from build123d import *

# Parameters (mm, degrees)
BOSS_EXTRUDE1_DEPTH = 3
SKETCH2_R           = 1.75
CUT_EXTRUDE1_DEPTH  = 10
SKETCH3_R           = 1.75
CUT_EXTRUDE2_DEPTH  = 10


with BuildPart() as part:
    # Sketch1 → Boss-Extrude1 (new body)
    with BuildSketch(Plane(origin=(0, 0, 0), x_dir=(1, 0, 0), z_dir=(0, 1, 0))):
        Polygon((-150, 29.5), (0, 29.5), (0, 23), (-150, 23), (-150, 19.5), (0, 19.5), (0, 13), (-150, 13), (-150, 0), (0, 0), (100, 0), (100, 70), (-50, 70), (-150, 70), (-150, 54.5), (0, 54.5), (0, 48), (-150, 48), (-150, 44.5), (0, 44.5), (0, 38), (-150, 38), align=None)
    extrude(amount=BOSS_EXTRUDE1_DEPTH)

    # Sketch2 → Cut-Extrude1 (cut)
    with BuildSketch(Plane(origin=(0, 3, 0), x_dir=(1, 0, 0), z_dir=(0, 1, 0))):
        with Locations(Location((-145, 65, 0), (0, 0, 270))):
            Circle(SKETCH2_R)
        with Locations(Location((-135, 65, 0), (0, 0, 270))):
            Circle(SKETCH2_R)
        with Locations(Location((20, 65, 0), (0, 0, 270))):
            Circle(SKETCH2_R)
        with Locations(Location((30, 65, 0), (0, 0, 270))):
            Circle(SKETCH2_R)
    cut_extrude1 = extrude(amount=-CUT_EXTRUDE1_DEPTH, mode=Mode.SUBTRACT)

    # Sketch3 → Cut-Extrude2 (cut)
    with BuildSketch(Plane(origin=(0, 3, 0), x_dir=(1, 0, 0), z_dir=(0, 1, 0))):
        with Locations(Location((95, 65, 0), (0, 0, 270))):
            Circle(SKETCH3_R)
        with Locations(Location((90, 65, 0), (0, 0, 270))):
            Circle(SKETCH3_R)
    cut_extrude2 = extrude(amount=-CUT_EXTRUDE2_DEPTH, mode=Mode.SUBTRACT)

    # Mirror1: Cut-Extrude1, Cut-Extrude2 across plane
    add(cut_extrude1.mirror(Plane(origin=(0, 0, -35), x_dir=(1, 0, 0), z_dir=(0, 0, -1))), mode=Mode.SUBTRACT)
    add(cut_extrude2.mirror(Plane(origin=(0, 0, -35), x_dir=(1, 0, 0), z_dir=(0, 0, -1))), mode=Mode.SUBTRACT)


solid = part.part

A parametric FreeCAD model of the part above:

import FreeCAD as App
import Part
import Sketcher
from FreeCAD import Vector

doc = App.newDocument("Part")
body = doc.addObject("PartDesign::Body", "Body")

# Sketch on XZ plane
sketch1 = body.newObject("Sketcher::SketchObject", "Sketch")
sketch1.AttachmentSupport = (doc.getObject("XZ_Plane"), [""])
sketch1.MapMode = "FlatFace"
sketch1.addGeometry(Part.LineSegment(Vector(-150, -29.5, 0), Vector(0, -29.5, 0)), False)
sketch1.addGeometry(Part.LineSegment(Vector(0, -29.5, 0), Vector(0, -23, 0)), False)
sketch1.addGeometry(Part.LineSegment(Vector(0, -23, 0), Vector(-150, -23, 0)), False)
sketch1.addGeometry(Part.LineSegment(Vector(-150, -23, 0), Vector(-150, -19.5, 0)), False)
sketch1.addGeometry(Part.LineSegment(Vector(-150, -19.5, 0), Vector(0, -19.5, 0)), False)
sketch1.addGeometry(Part.LineSegment(Vector(0, -19.5, 0), Vector(0, -13, 0)), False)
sketch1.addGeometry(Part.LineSegment(Vector(0, -13, 0), Vector(-150, -13, 0)), False)
sketch1.addGeometry(Part.LineSegment(Vector(-150, -13, 0), Vector(-150, 0, 0)), False)
sketch1.addGeometry(Part.LineSegment(Vector(-150, 0, 0), Vector(100, 0, 0)), False)
sketch1.addGeometry(Part.LineSegment(Vector(100, 0, 0), Vector(100, -70, 0)), False)
sketch1.addGeometry(Part.LineSegment(Vector(100, -70, 0), Vector(-150, -70, 0)), False)
sketch1.addGeometry(Part.LineSegment(Vector(-150, -70, 0), Vector(-150, -54.5, 0)), False)
sketch1.addGeometry(Part.LineSegment(Vector(-150, -54.5, 0), Vector(0, -54.5, 0)), False)
sketch1.addGeometry(Part.LineSegment(Vector(0, -54.5, 0), Vector(0, -48, 0)), False)
sketch1.addGeometry(Part.LineSegment(Vector(0, -48, 0), Vector(-150, -48, 0)), False)
sketch1.addGeometry(Part.LineSegment(Vector(-150, -48, 0), Vector(-150, -44.5, 0)), False)
sketch1.addGeometry(Part.LineSegment(Vector(-150, -44.5, 0), Vector(0, -44.5, 0)), False)
sketch1.addGeometry(Part.LineSegment(Vector(0, -44.5, 0), Vector(0, -38, 0)), False)
sketch1.addGeometry(Part.LineSegment(Vector(0, -38, 0), Vector(-150, -38, 0)), False)
sketch1.addGeometry(Part.LineSegment(Vector(-150, -38, 0), Vector(-150, -29.5, 0)), False)
sketch1.addConstraint(Sketcher.Constraint("Coincident", 0, 2, 1, 1))
sketch1.addConstraint(Sketcher.Constraint("Coincident", 1, 2, 2, 1))
sketch1.addConstraint(Sketcher.Constraint("Coincident", 2, 2, 3, 1))
sketch1.addConstraint(Sketcher.Constraint("Coincident", 3, 2, 4, 1))
sketch1.addConstraint(Sketcher.Constraint("Coincident", 4, 2, 5, 1))
sketch1.addConstraint(Sketcher.Constraint("Coincident", 5, 2, 6, 1))
sketch1.addConstraint(Sketcher.Constraint("Coincident", 6, 2, 7, 1))
sketch1.addConstraint(Sketcher.Constraint("Coincident", 7, 2, 8, 1))
sketch1.addConstraint(Sketcher.Constraint("Coincident", 8, 2, 9, 1))
sketch1.addConstraint(Sketcher.Constraint("Coincident", 9, 2, 10, 1))
sketch1.addConstraint(Sketcher.Constraint("Coincident", 10, 2, 11, 1))
sketch1.addConstraint(Sketcher.Constraint("Coincident", 11, 2, 12, 1))
sketch1.addConstraint(Sketcher.Constraint("Coincident", 12, 2, 13, 1))
sketch1.addConstraint(Sketcher.Constraint("Coincident", 13, 2, 14, 1))
sketch1.addConstraint(Sketcher.Constraint("Coincident", 14, 2, 15, 1))
sketch1.addConstraint(Sketcher.Constraint("Coincident", 15, 2, 16, 1))
sketch1.addConstraint(Sketcher.Constraint("Coincident", 16, 2, 17, 1))
sketch1.addConstraint(Sketcher.Constraint("Coincident", 17, 2, 18, 1))
sketch1.addConstraint(Sketcher.Constraint("Coincident", 18, 2, 19, 1))
sketch1.addConstraint(Sketcher.Constraint("Coincident", 19, 2, 0, 1))
sketch1.addConstraint(Sketcher.Constraint("Horizontal", 0))
sketch1.addConstraint(Sketcher.Constraint("Vertical", 1))
sketch1.addConstraint(Sketcher.Constraint("Horizontal", 2))
sketch1.addConstraint(Sketcher.Constraint("Vertical", 3))
sketch1.addConstraint(Sketcher.Constraint("Horizontal", 4))
sketch1.addConstraint(Sketcher.Constraint("Vertical", 5))
sketch1.addConstraint(Sketcher.Constraint("Horizontal", 6))
sketch1.addConstraint(Sketcher.Constraint("Vertical", 7))
sketch1.addConstraint(Sketcher.Constraint("Horizontal", 8))
sketch1.addConstraint(Sketcher.Constraint("Vertical", 9))
sketch1.addConstraint(Sketcher.Constraint("Horizontal", 10))
sketch1.addConstraint(Sketcher.Constraint("Vertical", 11))
sketch1.addConstraint(Sketcher.Constraint("Horizontal", 12))
sketch1.addConstraint(Sketcher.Constraint("Vertical", 13))
sketch1.addConstraint(Sketcher.Constraint("Horizontal", 14))
sketch1.addConstraint(Sketcher.Constraint("Vertical", 15))
sketch1.addConstraint(Sketcher.Constraint("Horizontal", 16))
sketch1.addConstraint(Sketcher.Constraint("Vertical", 17))
sketch1.addConstraint(Sketcher.Constraint("Horizontal", 18))
sketch1.addConstraint(Sketcher.Constraint("Vertical", 19))
sketch1.addConstraint(Sketcher.Constraint("PointOnObject", 0, 2, -2))
sketch1.addConstraint(Sketcher.Constraint("PointOnObject", 4, 2, -2))
sketch1.addConstraint(Sketcher.Constraint("PointOnObject", 7, 2, -1))
sketch1.addConstraint(Sketcher.Constraint("PointOnObject", 12, 2, -2))
sketch1.addConstraint(Sketcher.Constraint("PointOnObject", 16, 2, -2))
sketch1.addConstraint(Sketcher.Constraint("Vertical", 3, 2, 6, 2))
sketch1.addConstraint(Sketcher.Constraint("Vertical", 7, 2, 10, 2))
sketch1.addConstraint(Sketcher.Constraint("Vertical", 11, 2, 14, 2))
sketch1.addConstraint(Sketcher.Constraint("Vertical", 15, 2, 18, 2))
sketch1.addConstraint(Sketcher.Constraint("Equal", 1, 5))
sketch1.addConstraint(Sketcher.Constraint("Equal", 5, 13))
sketch1.addConstraint(Sketcher.Constraint("Equal", 3, 15))
sketch1.addConstraint(Sketcher.Constraint("Equal", 13, 17))
sketch1.addConstraint(Sketcher.Constraint("DistanceX", 0, 1, 0, 2, 150.0))
sketch1.addConstraint(Sketcher.Constraint("DistanceX", 8, 1, 8, 2, 250.0))
sketch1.addConstraint(Sketcher.Constraint("DistanceY", 7, 1, 7, 2, 13.0))
sketch1.addConstraint(Sketcher.Constraint("DistanceY", 9, 2, 9, 1, 70.0))
sketch1.addConstraint(Sketcher.Constraint("DistanceY", 1, 1, 1, 2, 6.5))
sketch1.addConstraint(Sketcher.Constraint("DistanceY", 3, 1, 3, 2, 3.5))
sketch1.addConstraint(Sketcher.Constraint("DistanceY", 11, 1, 11, 2, 15.5))
pad1 = body.newObject("PartDesign::Pad", "Pad")
pad1.Profile = sketch1
pad1.Length = 3
pad1.Reversed = True

# Sketch on XZ plane
sketch2 = body.newObject("Sketcher::SketchObject", "Sketch001")
sketch2.AttachmentSupport = (doc.getObject("XZ_Plane"), [""])
sketch2.MapMode = "FlatFace"
sketch2.AttachmentOffset = App.Placement(Vector(0, 0, -3), App.Rotation())
sketch2.addGeometry(Part.Circle(Vector(-145, -65, 0), Vector(0, 0, 1), 1.8), False)
sketch2.addGeometry(Part.Circle(Vector(-135, -65, 0), Vector(0, 0, 1), 1.8), False)
sketch2.addGeometry(Part.Circle(Vector(20, -65, 0), Vector(0, 0, 1), 1.8), False)
sketch2.addGeometry(Part.Circle(Vector(30, -65, 0), Vector(0, 0, 1), 1.8), False)
sketch2.addConstraint(Sketcher.Constraint("Equal", 0, 1))
sketch2.addConstraint(Sketcher.Constraint("Equal", 1, 2))
sketch2.addConstraint(Sketcher.Constraint("Equal", 2, 3))
sketch2.addConstraint(Sketcher.Constraint("Horizontal", 0, 3, 1, 3))
sketch2.addConstraint(Sketcher.Constraint("Horizontal", 1, 3, 2, 3))
sketch2.addConstraint(Sketcher.Constraint("Horizontal", 2, 3, 3, 3))
sketch2.addConstraint(Sketcher.Constraint("Diameter", 0, 3.5))
sketch2.addConstraint(Sketcher.Constraint("DistanceX", 0, 3, -1, 1, 145.0))
sketch2.addConstraint(Sketcher.Constraint("DistanceY", 0, 3, -1, 1, 65.0))
sketch2.addConstraint(Sketcher.Constraint("DistanceX", 1, 3, -1, 1, 135.0))
sketch2.addConstraint(Sketcher.Constraint("DistanceX", -1, 1, 2, 3, 20.0))
sketch2.addConstraint(Sketcher.Constraint("DistanceX", -1, 1, 3, 3, 30.0))
pocket1 = body.newObject("PartDesign::Pocket", "Pocket")
pocket1.Profile = sketch2
pocket1.Length = 10
pocket1.Reversed = True

# Sketch on XZ plane
sketch3 = body.newObject("Sketcher::SketchObject", "Sketch002")
sketch3.AttachmentSupport = (doc.getObject("XZ_Plane"), [""])
sketch3.MapMode = "FlatFace"
sketch3.AttachmentOffset = App.Placement(Vector(0, 0, -3), App.Rotation())
sketch3.addGeometry(Part.Circle(Vector(95, -65, 0), Vector(0, 0, 1), 1.8), False)
sketch3.addGeometry(Part.Circle(Vector(90, -65, 0), Vector(0, 0, 1), 1.8), False)
sketch3.addConstraint(Sketcher.Constraint("Equal", 0, 1))
sketch3.addConstraint(Sketcher.Constraint("Horizontal", 0, 3, 1, 3))
sketch3.addConstraint(Sketcher.Constraint("Diameter", 0, 3.5))
sketch3.addConstraint(Sketcher.Constraint("DistanceX", -1, 1, 0, 3, 95.0))
sketch3.addConstraint(Sketcher.Constraint("DistanceY", 0, 3, -1, 1, 65.0))
sketch3.addConstraint(Sketcher.Constraint("DistanceX", -1, 1, 1, 3, 90.0))
pocket2 = body.newObject("PartDesign::Pocket", "Pocket001")
pocket2.Profile = sketch3
pocket2.Length = 10
pocket2.Reversed = True
doc.recompute()

datumplane = body.newObject("PartDesign::Plane", "DatumPlane")
datumplane.AttachmentSupport = (doc.getObject("XY_Plane"), [""])
datumplane.MapMode = "FlatFace"
datumplane.AttachmentOffset = App.Placement(Vector(0, 0, -35), App.Rotation())
mirrored = body.newObject("PartDesign::Mirrored", "Mirrored")
mirrored.Originals = [pocket1, pocket2]
mirrored.MirrorPlane = (datumplane, [""])
body.Tip = mirrored

doc.recompute()
